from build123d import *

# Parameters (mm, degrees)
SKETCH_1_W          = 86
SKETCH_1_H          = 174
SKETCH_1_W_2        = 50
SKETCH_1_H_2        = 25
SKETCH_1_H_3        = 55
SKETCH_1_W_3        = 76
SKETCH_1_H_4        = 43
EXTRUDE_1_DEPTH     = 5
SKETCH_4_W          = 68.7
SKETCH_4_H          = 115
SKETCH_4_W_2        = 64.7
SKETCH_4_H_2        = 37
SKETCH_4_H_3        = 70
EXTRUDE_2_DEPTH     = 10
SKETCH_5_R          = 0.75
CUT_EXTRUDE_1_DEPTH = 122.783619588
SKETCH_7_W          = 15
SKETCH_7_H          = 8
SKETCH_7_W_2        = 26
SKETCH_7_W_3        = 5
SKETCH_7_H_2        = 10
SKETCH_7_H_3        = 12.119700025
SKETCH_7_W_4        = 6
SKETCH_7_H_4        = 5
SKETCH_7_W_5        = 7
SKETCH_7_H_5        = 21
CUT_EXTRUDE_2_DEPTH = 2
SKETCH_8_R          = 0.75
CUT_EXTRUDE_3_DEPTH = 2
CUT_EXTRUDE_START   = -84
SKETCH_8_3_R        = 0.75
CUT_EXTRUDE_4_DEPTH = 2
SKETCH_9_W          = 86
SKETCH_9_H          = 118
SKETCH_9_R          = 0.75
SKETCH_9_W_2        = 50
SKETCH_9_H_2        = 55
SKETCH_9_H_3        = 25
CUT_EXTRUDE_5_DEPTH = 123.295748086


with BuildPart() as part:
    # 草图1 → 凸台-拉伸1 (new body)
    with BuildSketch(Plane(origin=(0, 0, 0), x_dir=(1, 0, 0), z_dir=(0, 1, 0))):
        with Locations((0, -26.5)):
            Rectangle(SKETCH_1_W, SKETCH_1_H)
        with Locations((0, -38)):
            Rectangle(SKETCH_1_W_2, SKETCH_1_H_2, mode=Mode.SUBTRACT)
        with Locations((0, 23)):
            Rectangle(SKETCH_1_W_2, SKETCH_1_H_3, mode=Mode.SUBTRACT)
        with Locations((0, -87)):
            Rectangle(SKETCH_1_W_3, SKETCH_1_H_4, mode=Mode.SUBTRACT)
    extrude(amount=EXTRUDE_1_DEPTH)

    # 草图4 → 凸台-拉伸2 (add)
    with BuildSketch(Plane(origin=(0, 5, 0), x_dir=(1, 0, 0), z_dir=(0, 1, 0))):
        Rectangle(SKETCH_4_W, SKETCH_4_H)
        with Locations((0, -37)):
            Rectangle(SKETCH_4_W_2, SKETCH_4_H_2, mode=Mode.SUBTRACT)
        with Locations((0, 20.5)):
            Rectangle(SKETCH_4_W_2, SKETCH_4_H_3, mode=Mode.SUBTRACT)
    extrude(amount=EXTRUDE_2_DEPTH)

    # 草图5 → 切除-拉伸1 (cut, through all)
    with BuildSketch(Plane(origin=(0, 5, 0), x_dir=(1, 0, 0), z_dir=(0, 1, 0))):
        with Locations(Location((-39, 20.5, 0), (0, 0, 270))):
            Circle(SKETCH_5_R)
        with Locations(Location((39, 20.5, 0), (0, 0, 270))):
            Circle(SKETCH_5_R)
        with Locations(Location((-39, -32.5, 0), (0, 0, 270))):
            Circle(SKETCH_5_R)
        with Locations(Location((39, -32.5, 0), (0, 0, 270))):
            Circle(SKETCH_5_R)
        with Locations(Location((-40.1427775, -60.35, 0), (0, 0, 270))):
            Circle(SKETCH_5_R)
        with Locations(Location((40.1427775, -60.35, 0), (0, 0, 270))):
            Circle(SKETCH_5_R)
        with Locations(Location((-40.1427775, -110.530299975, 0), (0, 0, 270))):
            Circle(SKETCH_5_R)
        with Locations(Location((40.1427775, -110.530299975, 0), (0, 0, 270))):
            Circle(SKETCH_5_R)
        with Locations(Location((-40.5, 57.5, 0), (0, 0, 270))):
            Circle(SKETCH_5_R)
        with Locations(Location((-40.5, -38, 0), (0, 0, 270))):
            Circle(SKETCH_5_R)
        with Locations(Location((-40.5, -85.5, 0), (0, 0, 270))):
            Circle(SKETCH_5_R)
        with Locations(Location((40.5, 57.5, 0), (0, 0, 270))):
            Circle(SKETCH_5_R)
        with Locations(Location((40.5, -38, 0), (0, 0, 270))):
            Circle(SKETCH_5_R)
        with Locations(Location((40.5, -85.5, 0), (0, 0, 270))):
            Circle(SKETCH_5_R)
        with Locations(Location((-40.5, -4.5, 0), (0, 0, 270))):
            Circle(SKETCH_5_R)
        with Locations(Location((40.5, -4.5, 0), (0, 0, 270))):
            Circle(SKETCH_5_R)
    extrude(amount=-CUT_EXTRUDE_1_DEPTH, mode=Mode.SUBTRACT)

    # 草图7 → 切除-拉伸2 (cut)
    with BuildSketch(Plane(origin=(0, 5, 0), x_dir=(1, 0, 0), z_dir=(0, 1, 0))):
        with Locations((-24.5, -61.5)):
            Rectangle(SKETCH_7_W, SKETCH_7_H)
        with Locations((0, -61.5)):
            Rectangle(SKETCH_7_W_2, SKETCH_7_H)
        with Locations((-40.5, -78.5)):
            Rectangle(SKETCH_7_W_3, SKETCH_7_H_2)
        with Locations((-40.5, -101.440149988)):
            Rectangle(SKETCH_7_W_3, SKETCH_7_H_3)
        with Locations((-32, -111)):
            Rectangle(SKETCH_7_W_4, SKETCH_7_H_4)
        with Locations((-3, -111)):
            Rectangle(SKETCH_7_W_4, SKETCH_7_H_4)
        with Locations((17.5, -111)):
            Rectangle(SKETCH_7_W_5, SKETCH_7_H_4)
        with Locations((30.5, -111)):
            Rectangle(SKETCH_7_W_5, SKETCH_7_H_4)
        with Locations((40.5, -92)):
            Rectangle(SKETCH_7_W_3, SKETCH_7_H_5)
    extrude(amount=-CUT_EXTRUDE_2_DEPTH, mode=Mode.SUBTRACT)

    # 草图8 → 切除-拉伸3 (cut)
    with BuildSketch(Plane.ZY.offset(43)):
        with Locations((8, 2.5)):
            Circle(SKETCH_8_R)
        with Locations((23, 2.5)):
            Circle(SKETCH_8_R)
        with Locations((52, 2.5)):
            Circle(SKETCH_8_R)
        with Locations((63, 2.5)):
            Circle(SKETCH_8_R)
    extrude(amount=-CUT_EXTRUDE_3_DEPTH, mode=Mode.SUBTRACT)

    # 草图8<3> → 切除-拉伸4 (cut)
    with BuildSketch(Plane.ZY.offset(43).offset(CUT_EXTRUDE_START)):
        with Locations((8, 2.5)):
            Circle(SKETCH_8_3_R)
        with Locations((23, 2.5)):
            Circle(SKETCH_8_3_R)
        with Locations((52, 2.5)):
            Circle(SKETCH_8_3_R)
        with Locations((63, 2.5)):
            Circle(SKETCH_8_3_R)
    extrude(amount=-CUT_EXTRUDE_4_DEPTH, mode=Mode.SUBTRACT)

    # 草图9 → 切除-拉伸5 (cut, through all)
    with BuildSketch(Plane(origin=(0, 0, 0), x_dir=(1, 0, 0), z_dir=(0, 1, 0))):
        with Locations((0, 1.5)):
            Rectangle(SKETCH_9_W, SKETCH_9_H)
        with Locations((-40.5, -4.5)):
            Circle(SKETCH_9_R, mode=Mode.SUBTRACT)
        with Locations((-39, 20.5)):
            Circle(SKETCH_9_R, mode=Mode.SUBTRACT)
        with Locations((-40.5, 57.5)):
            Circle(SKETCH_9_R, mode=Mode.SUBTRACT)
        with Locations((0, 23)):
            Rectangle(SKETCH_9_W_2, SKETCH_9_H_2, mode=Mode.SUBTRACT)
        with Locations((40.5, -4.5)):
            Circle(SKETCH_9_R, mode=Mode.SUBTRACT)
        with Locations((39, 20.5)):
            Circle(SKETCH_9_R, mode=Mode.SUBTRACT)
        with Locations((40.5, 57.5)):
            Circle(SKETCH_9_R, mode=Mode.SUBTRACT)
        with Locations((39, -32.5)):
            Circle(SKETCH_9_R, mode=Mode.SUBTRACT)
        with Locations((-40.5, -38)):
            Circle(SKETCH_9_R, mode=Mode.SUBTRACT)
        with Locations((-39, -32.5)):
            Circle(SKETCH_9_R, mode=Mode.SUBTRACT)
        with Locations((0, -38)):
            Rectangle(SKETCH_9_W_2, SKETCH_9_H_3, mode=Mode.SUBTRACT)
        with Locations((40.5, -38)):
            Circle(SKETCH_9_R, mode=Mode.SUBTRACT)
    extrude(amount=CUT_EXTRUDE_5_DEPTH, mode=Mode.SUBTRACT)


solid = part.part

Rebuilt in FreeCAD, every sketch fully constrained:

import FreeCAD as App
import Part
import Sketcher
from FreeCAD import Vector
Q = App.Units.Quantity

doc = App.newDocument("Part")
body = doc.addObject("PartDesign::Body", "Body")

# Sketch on XZ plane
sketch1 = doc.addObject("Sketcher::SketchObject", "Sketch")
body.addObject(sketch1)
sketch1.AttachmentSupport = (doc.XZ_Plane, [""])
sketch1.MapMode = "FlatFace"
sketch1.addGeometry([
    Part.LineSegment(Vector(-43, -60.5, 0), Vector(-43, 113.5, 0)),  # 0
    Part.LineSegment(Vector(-43, 113.5, 0), Vector(43, 113.5, 0)),  # 1
    Part.LineSegment(Vector(43, 113.5, 0), Vector(43, -60.5, 0)),  # 2
    Part.LineSegment(Vector(43, -60.5, 0), Vector(-43, -60.5, 0)),  # 3
    Part.LineSegment(Vector(38, 108.5, 0), Vector(-38, 108.5, 0)),  # 4
    Part.LineSegment(Vector(-38, 108.5, 0), Vector(-38, 65.5, 0)),  # 5
    Part.LineSegment(Vector(-38, 65.5, 0), Vector(38, 65.5, 0)),  # 6
    Part.LineSegment(Vector(38, 65.5, 0), Vector(38, 108.5, 0)),  # 7
    Part.LineSegment(Vector(25, 50.5, 0), Vector(-25, 50.5, 0)),  # 8
    Part.LineSegment(Vector(-25, 50.5, 0), Vector(-25, 25.5, 0)),  # 9
    Part.LineSegment(Vector(-25, 25.5, 0), Vector(25, 25.5, 0)),  # 10
    Part.LineSegment(Vector(25, 25.5, 0), Vector(25, 50.5, 0)),  # 11
    Part.LineSegment(Vector(25, 4.5, 0), Vector(-25, 4.5, 0)),  # 12
    Part.LineSegment(Vector(-25, 4.5, 0), Vector(-25, -50.5, 0)),  # 13
    Part.LineSegment(Vector(-25, -50.5, 0), Vector(25, -50.5, 0)),  # 14
    Part.LineSegment(Vector(25, -50.5, 0), Vector(25, 4.5, 0)),  # 15
], False)
sketch1.addConstraint([
    Sketcher.Constraint("Coincident", 0, 2, 1, 1),
    Sketcher.Constraint("Coincident", 1, 2, 2, 1),
    Sketcher.Constraint("Coincident", 2, 2, 3, 1),
    Sketcher.Constraint("Coincident", 3, 2, 0, 1),
    Sketcher.Constraint("Coincident", 4, 2, 5, 1),
    Sketcher.Constraint("Coincident", 5, 2, 6, 1),
    Sketcher.Constraint("Coincident", 6, 2, 7, 1),
    Sketcher.Constraint("Coincident", 7, 2, 4, 1),
    Sketcher.Constraint("Coincident", 8, 2, 9, 1),
    Sketcher.Constraint("Coincident", 9, 2, 10, 1),
    Sketcher.Constraint("Coincident", 10, 2, 11, 1),
    Sketcher.Constraint("Coincident", 11, 2, 8, 1),
    Sketcher.Constraint("Coincident", 12, 2, 13, 1),
    Sketcher.Constraint("Coincident", 13, 2, 14, 1),
    Sketcher.Constraint("Coincident", 14, 2, 15, 1),
    Sketcher.Constraint("Coincident", 15, 2, 12, 1),
    Sketcher.Constraint("Vertical", 0),
    Sketcher.Constraint("Horizontal", 1),
    Sketcher.Constraint("Vertical", 2),
    Sketcher.Constraint("Horizontal", 3),
    Sketcher.Constraint("Horizontal", 4),
    Sketcher.Constraint("Vertical", 5),
    Sketcher.Constraint("Horizontal", 6),
    Sketcher.Constraint("Vertical", 7),
    Sketcher.Constraint("Horizontal", 8),
    Sketcher.Constraint("Vertical", 9),
    Sketcher.Constraint("Horizontal", 10),
    Sketcher.Constraint("Vertical", 11),
    Sketcher.Constraint("Horizontal", 12),
    Sketcher.Constraint("Vertical", 13),
    Sketcher.Constraint("Horizontal", 14),
    Sketcher.Constraint("Vertical", 15),
    Sketcher.Constraint("Symmetric", 11, 2, 13, 2, -1, 1),
    Sketcher.Constraint("Vertical", 9, 2, 12, 2),
    Sketcher.Constraint("Vertical", 11, 2, 14, 2),
    Sketcher.Constraint("DistanceX", 1, 1, 1, 2, Q("86 mm")),
    Sketcher.Constraint("DistanceX", 4, 2, 4, 1, Q("76 mm")),
    Sketcher.Constraint("DistanceX", 8, 2, 8, 1, Q("50 mm")),
    Sketcher.Constraint("DistanceY", 0, 1, 0, 2, Q("174 mm")),
    Sketcher.Constraint("DistanceY", 5, 2, 5, 1, Q("43 mm")),
    Sketcher.Constraint("DistanceY", 9, 2, 9, 1, Q("25 mm")),
    Sketcher.Constraint("DistanceY", 13, 2, 13, 1, Q("55 mm")),
    Sketcher.Constraint("DistanceX", 0, 2, -1, 1, Q("43 mm")),
    Sketcher.Constraint("DistanceX", 4, 2, -1, 1, Q("38 mm")),
    Sketcher.Constraint("DistanceY", 4, 2, 0, 2, Q("5 mm")),
    Sketcher.Constraint("DistanceY", 8, 2, 5, 2, Q("15 mm")),
    Sketcher.Constraint("DistanceY", 12, 2, 9, 2, Q("21 mm")),
])
pad1 = doc.addObject("PartDesign::Pad", "Pad")
body.addObject(pad1)
pad1.Profile = sketch1
pad1.Length = 5
pad1.Reversed = True

# Sketch on XZ plane
sketch2 = doc.addObject("Sketcher::SketchObject", "Sketch001")
body.addObject(sketch2)
sketch2.AttachmentSupport = (doc.XZ_Plane, [""])
sketch2.MapMode = "FlatFace"
sketch2.AttachmentOffset = App.Placement(Vector(0, 0, -5), App.Rotation())
sketch2.addGeometry([
    Part.LineSegment(Vector(-34.35, -57.5, 0), Vector(-34.35, 57.5, 0)),  # 0
    Part.LineSegment(Vector(-34.35, 57.5, 0), Vector(34.35, 57.5, 0)),  # 1
    Part.LineSegment(Vector(34.35, 57.5, 0), Vector(34.35, -57.5, 0)),  # 2
    Part.LineSegment(Vector(34.35, -57.5, 0), Vector(-34.35, -57.5, 0)),  # 3
    Part.LineSegment(Vector(32.35, 55.5, 0), Vector(-32.35, 55.5, 0)),  # 4
    Part.LineSegment(Vector(-32.35, 55.5, 0), Vector(-32.35, 18.5, 0)),  # 5
    Part.LineSegment(Vector(-32.35, 18.5, 0), Vector(32.35, 18.5, 0)),  # 6
    Part.LineSegment(Vector(32.35, 18.5, 0), Vector(32.35, 55.5, 0)),  # 7
    Part.LineSegment(Vector(32.35, 14.5, 0), Vector(-32.35, 14.5, 0)),  # 8
    Part.LineSegment(Vector(-32.35, 14.5, 0), Vector(-32.35, -55.5, 0)),  # 9
    Part.LineSegment(Vector(-32.35, -55.5, 0), Vector(32.35, -55.5, 0)),  # 10
    Part.LineSegment(Vector(32.35, -55.5, 0), Vector(32.35, 14.5, 0)),  # 11
], False)
sketch2.addConstraint([
    Sketcher.Constraint("Coincident", 0, 2, 1, 1),
    Sketcher.Constraint("Coincident", 1, 2, 2, 1),
    Sketcher.Constraint("Coincident", 2, 2, 3, 1),
    Sketcher.Constraint("Coincident", 3, 2, 0, 1),
    Sketcher.Constraint("Coincident", 4, 2, 5, 1),
    Sketcher.Constraint("Coincident", 5, 2, 6, 1),
    Sketcher.Constraint("Coincident", 6, 2, 7, 1),
    Sketcher.Constraint("Coincident", 7, 2, 4, 1),
    Sketcher.Constraint("Coincident", 8, 2, 9, 1),
    Sketcher.Constraint("Coincident", 9, 2, 10, 1),
    Sketcher.Constraint("Coincident", 10, 2, 11, 1),
    Sketcher.Constraint("Coincident", 11, 2, 8, 1),
    Sketcher.Constraint("Vertical", 0),
    Sketcher.Constraint("Horizontal", 1),
    Sketcher.Constraint("Vertical", 2),
    Sketcher.Constraint("Horizontal", 3),
    Sketcher.Constraint("Horizontal", 4),
    Sketcher.Constraint("Vertical", 5),
    Sketcher.Constraint("Horizontal", 6),
    Sketcher.Constraint("Vertical", 7),
    Sketcher.Constraint("Horizontal", 8),
    Sketcher.Constraint("Vertical", 9),
    Sketcher.Constraint("Horizontal", 10),
    Sketcher.Constraint("Vertical", 11),
    Sketcher.Constraint("Symmetric", 0, 2, 2, 2, -1, 1),
    Sketcher.Constraint("Symmetric", 7, 2, 9, 2, -1, 1),
    Sketcher.Constraint("Vertical", 5, 2, 8, 2),
    Sketcher.Constraint("Vertical", 7, 2, 10, 2),
    Sketcher.Constraint("DistanceY", 0, 1, 0, 2, Q("115 mm")),
    Sketcher.Constraint("DistanceY", 5, 2, 5, 1, Q("37 mm")),
    Sketcher.Constraint("DistanceY", 9, 2, 9, 1, Q("70 mm")),
    Sketcher.Constraint("DistanceX", 1, 1, 1, 2, Q("68.7 mm")),
    Sketcher.Constraint("DistanceX", 4, 2, 4, 1, Q("64.7 mm")),
    Sketcher.Constraint("DistanceY", 4, 2, 0, 2, Q("2 mm")),
])
pad2 = doc.addObject("PartDesign::Pad", "Pad001")
body.addObject(pad2)
pad2.Profile = sketch2
pad2.Length = 10
pad2.Reversed = True

# Sketch on XZ plane
sketch3 = doc.addObject("Sketcher::SketchObject", "Sketch002")
body.addObject(sketch3)
sketch3.AttachmentSupport = (doc.XZ_Plane, [""])
sketch3.MapMode = "FlatFace"
sketch3.AttachmentOffset = App.Placement(Vector(0, 0, -5), App.Rotation())
sketch3.addGeometry([
    Part.Circle(Vector(-39, -20.5, 0), Vector(0, 0, 1), 0.75),  # 0
    Part.Circle(Vector(39, -20.5, 0), Vector(0, 0, 1), 0.75),  # 1
    Part.Circle(Vector(-39, 32.5, 0), Vector(0, 0, 1), 0.75),  # 2
    Part.Circle(Vector(39, 32.5, 0), Vector(0, 0, 1), 0.75),  # 3
    Part.Circle(Vector(-40.142778, 60.35, 0), Vector(0, 0, 1), 0.75),  # 4
    Part.Circle(Vector(40.142778, 60.35, 0), Vector(0, 0, 1), 0.75),  # 5
    Part.Circle(Vector(-40.142778, 110.5303, 0), Vector(0, 0, 1), 0.75),  # 6
    Part.Circle(Vector(40.142778, 110.5303, 0), Vector(0, 0, 1), 0.75),  # 7
    Part.Circle(Vector(-40.5, -57.5, 0), Vector(0, 0, 1), 0.75),  # 8
    Part.Circle(Vector(-40.5, 38, 0), Vector(0, 0, 1), 0.75),  # 9
    Part.Circle(Vector(-40.5, 85.5, 0), Vector(0, 0, 1), 0.75),  # 10
    Part.Circle(Vector(40.5, -57.5, 0), Vector(0, 0, 1), 0.75),  # 11
    Part.Circle(Vector(40.5, 38, 0), Vector(0, 0, 1), 0.75),  # 12
    Part.Circle(Vector(40.5, 85.5, 0), Vector(0, 0, 1), 0.75),  # 13
    Part.Circle(Vector(-40.5, 4.5, 0), Vector(0, 0, 1), 0.75),  # 14
    Part.Circle(Vector(40.5, 4.5, 0), Vector(0, 0, 1), 0.75),  # 15
], False)
sketch3.addConstraint([
    Sketcher.Constraint("Equal", 0, 1),
    Sketcher.Constraint("Equal", 1, 2),
    Sketcher.Constraint("Equal", 2, 3),
    Sketcher.Constraint("Equal", 3, 4),
    Sketcher.Constraint("Equal", 4, 5),
    Sketcher.Constraint("Equal", 5, 6),
    Sketcher.Constraint("Equal", 6, 7),
    Sketcher.Constraint("Equal", 7, 8),
    Sketcher.Constraint("Equal", 8, 9),
    Sketcher.Constraint("Equal", 9, 10),
    Sketcher.Constraint("Equal", 10, 11),
    Sketcher.Constraint("Equal", 11, 12),
    Sketcher.Constraint("Equal", 12, 13),
    Sketcher.Constraint("Equal", 13, 14),
    Sketcher.Constraint("Equal", 14, 15),
    Sketcher.Constraint("Symmetric", 0, 3, 1, 3, -2),
    Sketcher.Constraint("Symmetric", 2, 3, 3, 3, -2),
    Sketcher.Constraint("Symmetric", 4, 3, 5, 3, -2),
    Sketcher.Constraint("Symmetric", 6, 3, 7, 3, -2),
    Sketcher.Constraint("Symmetric", 8, 3, 11, 3, -2),
    Sketcher.Constraint("Symmetric", 9, 3, 12, 3, -2),
    Sketcher.Constraint("Symmetric", 10, 3, 13, 3, -2),
    Sketcher.Constraint("Symmetric", 14, 3, 15, 3, -2),
    Sketcher.Constraint("Vertical", 0, 3, 2, 3),
    Sketcher.Constraint("Vertical", 4, 3, 6, 3),
    Sketcher.Constraint("Vertical", 8, 3, 9, 3),
    Sketcher.Constraint("Vertical", 9, 3, 10, 3),
    Sketcher.Constraint("Vertical", 10, 3, 14, 3),
    Sketcher.Constraint("Diameter", 0, Q("1.5 mm")),
    Sketcher.Constraint("DistanceX", 0, 3, -1, 1, Q("39 mm")),
    Sketcher.Constraint("DistanceY", -1, 1, 9, 3, Q("38 mm")),
    Sketcher.Constraint("DistanceY", 0, 3, 2, 3, Q("53 mm")),
    Sketcher.Constraint("DistanceY", 8, 3, 0, 3, Q("37 mm")),
    Sketcher.Constraint("DistanceY", 2, 3, 10, 3, Q("53 mm")),
    Sketcher.Constraint("DistanceX", 8, 3, 11, 3, Q("81 mm")),
    Sketcher.Constraint("DistanceY", 0, 3, 14, 3, Q("25 mm")),
    Sketcher.Constraint("DistanceY", 0, 3, -1, 1, Q("20.5 mm")),
    Sketcher.Constraint("DistanceY", -1, 1, 4, 3, Q("60.35 mm")),
    Sketcher.Constraint("DistanceY", -1, 1, 6, 3, Q("110.5303 mm")),
    Sketcher.Constraint("DistanceX", 4, 3, -1, 1, Q("40.142778 mm")),
])
pocket1 = doc.addObject("PartDesign::Pocket", "Pocket")
body.addObject(pocket1)
pocket1.Profile = sketch3
pocket1.Type = "ThroughAll"
pocket1.Reversed = True

# Sketch on XZ plane
sketch4 = doc.addObject("Sketcher::SketchObject", "Sketch003")
body.addObject(sketch4)
sketch4.AttachmentSupport = (doc.XZ_Plane, [""])
sketch4.MapMode = "FlatFace"
sketch4.AttachmentOffset = App.Placement(Vector(0, 0, -5), App.Rotation())
sketch4.addGeometry([
    Part.LineSegment(Vector(-32, 57.5, 0), Vector(-32, 65.5, 0)),  # 0
    Part.LineSegment(Vector(-32, 65.5, 0), Vector(-17, 65.5, 0)),  # 1
    Part.LineSegment(Vector(-17, 65.5, 0), Vector(-17, 57.5, 0)),  # 2
    Part.LineSegment(Vector(-17, 57.5, 0), Vector(-32, 57.5, 0)),  # 3
    Part.LineSegment(Vector(-13, 57.5, 0), Vector(-13, 65.5, 0)),  # 4
    Part.LineSegment(Vector(-13, 65.5, 0), Vector(13, 65.5, 0)),  # 5
    Part.LineSegment(Vector(13, 65.5, 0), Vector(13, 57.5, 0)),  # 6
    Part.LineSegment(Vector(13, 57.5, 0), Vector(-13, 57.5, 0)),  # 7
    Part.LineSegment(Vector(-43, 73.5, 0), Vector(-43, 83.5, 0)),  # 8
    Part.LineSegment(Vector(-43, 83.5, 0), Vector(-38, 83.5, 0)),  # 9
    Part.LineSegment(Vector(-38, 83.5, 0), Vector(-38, 73.5, 0)),  # 10
    Part.LineSegment(Vector(-38, 73.5, 0), Vector(-43, 73.5, 0)),  # 11
    Part.LineSegment(Vector(-43, 95.3803, 0), Vector(-43, 107.5, 0)),  # 12
    Part.LineSegment(Vector(-43, 107.5, 0), Vector(-38, 107.5, 0)),  # 13
    Part.LineSegment(Vector(-38, 107.5, 0), Vector(-38, 95.3803, 0)),  # 14
    Part.LineSegment(Vector(-38, 95.3803, 0), Vector(-43, 95.3803, 0)),  # 15
    Part.LineSegment(Vector(-35, 108.5, 0), Vector(-35, 113.5, 0)),  # 16
    Part.LineSegment(Vector(-35, 113.5, 0), Vector(-29, 113.5, 0)),  # 17
    Part.LineSegment(Vector(-29, 113.5, 0), Vector(-29, 108.5, 0)),  # 18
    Part.LineSegment(Vector(-29, 108.5, 0), Vector(-35, 108.5, 0)),  # 19
    Part.LineSegment(Vector(-6, 108.5, 0), Vector(-6, 113.5, 0)),  # 20
    Part.LineSegment(Vector(-6, 113.5, 0), Vector(0, 113.5, 0)),  # 21
    Part.LineSegment(Vector(0, 113.5, 0), Vector(0, 108.5, 0)),  # 22
    Part.LineSegment(Vector(0, 108.5, 0), Vector(-6, 108.5, 0)),  # 23
    Part.LineSegment(Vector(14, 108.5, 0), Vector(14, 113.5, 0)),  # 24
    Part.LineSegment(Vector(14, 113.5, 0), Vector(21, 113.5, 0)),  # 25
    Part.LineSegment(Vector(21, 113.5, 0), Vector(21, 108.5, 0)),  # 26
    Part.LineSegment(Vector(21, 108.5, 0), Vector(14, 108.5, 0)),  # 27
    Part.LineSegment(Vector(27, 108.5, 0), Vector(27, 113.5, 0)),  # 28
    Part.LineSegment(Vector(27, 113.5, 0), Vector(34, 113.5, 0)),  # 29
    Part.LineSegment(Vector(34, 113.5, 0), Vector(34, 108.5, 0)),  # 30
    Part.LineSegment(Vector(34, 108.5, 0), Vector(27, 108.5, 0)),  # 31
    Part.LineSegment(Vector(38, 81.5, 0), Vector(38, 102.5, 0)),  # 32
    Part.LineSegment(Vector(38, 102.5, 0), Vector(43, 102.5, 0)),  # 33
    Part.LineSegment(Vector(43, 102.5, 0), Vector(43, 81.5, 0)),  # 34
    Part.LineSegment(Vector(43, 81.5, 0), Vector(38, 81.5, 0)),  # 35
], False)
sketch4.addConstraint([
    Sketcher.Constraint("Coincident", 0, 2, 1, 1),
    Sketcher.Constraint("Coincident", 1, 2, 2, 1),
    Sketcher.Constraint("Coincident", 2, 2, 3, 1),
    Sketcher.Constraint("Coincident", 3, 2, 0, 1),
    Sketcher.Constraint("Coincident", 4, 2, 5, 1),
    Sketcher.Constraint("Coincident", 5, 2, 6, 1),
    Sketcher.Constraint("Coincident", 6, 2, 7, 1),
    Sketcher.Constraint("Coincident", 7, 2, 4, 1),
    Sketcher.Constraint("Coincident", 8, 2, 9, 1),
    Sketcher.Constraint("Coincident", 9, 2, 10, 1),
    Sketcher.Constraint("Coincident", 10, 2, 11, 1),
    Sketcher.Constraint("Coincident", 11, 2, 8, 1),
    Sketcher.Constraint("Coincident", 12, 2, 13, 1),
    Sketcher.Constraint("Coincident", 13, 2, 14, 1),
    Sketcher.Constraint("Coincident", 14, 2, 15, 1),
    Sketcher.Constraint("Coincident", 15, 2, 12, 1),
    Sketcher.Constraint("Coincident", 16, 2, 17, 1),
    Sketcher.Constraint("Coincident", 17, 2, 18, 1),
    Sketcher.Constraint("Coincident", 18, 2, 19, 1),
    Sketcher.Constraint("Coincident", 19, 2, 16, 1),
    Sketcher.Constraint("Coincident", 20, 2, 21, 1),
    Sketcher.Constraint("Coincident", 21, 2, 22, 1),
    Sketcher.Constraint("Coincident", 22, 2, 23, 1),
    Sketcher.Constraint("Coincident", 23, 2, 20, 1),
    Sketcher.Constraint("Coincident", 24, 2, 25, 1),
    Sketcher.Constraint("Coincident", 25, 2, 26, 1),
    Sketcher.Constraint("Coincident", 26, 2, 27, 1),
    Sketcher.Constraint("Coincident", 27, 2, 24, 1),
    Sketcher.Constraint("Coincident", 28, 2, 29, 1),
    Sketcher.Constraint("Coincident", 29, 2, 30, 1),
    Sketcher.Constraint("Coincident", 30, 2, 31, 1),
    Sketcher.Constraint("Coincident", 31, 2, 28, 1),
    Sketcher.Constraint("Coincident", 32, 2, 33, 1),
    Sketcher.Constraint("Coincident", 33, 2, 34, 1),
    Sketcher.Constraint("Coincident", 34, 2, 35, 1),
    Sketcher.Constraint("Coincident", 35, 2, 32, 1),
    Sketcher.Constraint("Vertical", 0),
    Sketcher.Constraint("Horizontal", 1),
    Sketcher.Constraint("Vertical", 2),
    Sketcher.Constraint("Horizontal", 3),
    Sketcher.Constraint("Vertical", 4),
    Sketcher.Constraint("Horizontal", 5),
    Sketcher.Constraint("Vertical", 6),
    Sketcher.Constraint("Horizontal", 7),
    Sketcher.Constraint("Vertical", 8),
    Sketcher.Constraint("Horizontal", 9),
    Sketcher.Constraint("Vertical", 10),
    Sketcher.Constraint("Horizontal", 11),
    Sketcher.Constraint("Vertical", 12),
    Sketcher.Constraint("Horizontal", 13),
    Sketcher.Constraint("Vertical", 14),
    Sketcher.Constraint("Horizontal", 15),
    Sketcher.Constraint("Vertical", 16),
    Sketcher.Constraint("Horizontal", 17),
    Sketcher.Constraint("Vertical", 18),
    Sketcher.Constraint("Horizontal", 19),
    Sketcher.Constraint("Vertical", 20),
    Sketcher.Constraint("Horizontal", 21),
    Sketcher.Constraint("Vertical", 22),
    Sketcher.Constraint("Horizontal", 23),
    Sketcher.Constraint("Vertical", 24),
    Sketcher.Constraint("Horizontal", 25),
    Sketcher.Constraint("Vertical", 26),
    Sketcher.Constraint("Horizontal", 27),
    Sketcher.Constraint("Vertical", 28),
    Sketcher.Constraint("Horizontal", 29),
    Sketcher.Constraint("Vertical", 30),
    Sketcher.Constraint("Horizontal", 31),
    Sketcher.Constraint("Vertical", 32),
    Sketcher.Constraint("Horizontal", 33),
    Sketcher.Constraint("Vertical", 34),
    Sketcher.Constraint("Horizontal", 35),
    Sketcher.Constraint("PointOnObject", 21, 2, -2),
    Sketcher.Constraint("Horizontal", 1, 2, 4, 2),
    Sketcher.Constraint("Horizontal", 3, 2, 6, 2),
    Sketcher.Constraint("Horizontal", 17, 2, 20, 2),
    Sketcher.Constraint("Horizontal", 19, 2, 22, 2),
    Sketcher.Constraint("Horizontal", 21, 2, 24, 2),
    Sketcher.Constraint("Horizontal", 23, 2, 26, 2),
    Sketcher.Constraint("Horizontal", 25, 2, 28, 2),
    Sketcher.Constraint("Horizontal", 27, 2, 30, 2),
    Sketcher.Constraint("Vertical", 11, 2, 12, 2),
    Sketcher.Constraint("Vertical", 10, 2, 13, 2),
    Sketcher.Constraint("Equal", 19, 21),
    Sketcher.Constraint("Equal", 27, 29),
    Sketcher.Constraint("Equal", 15, 33),
    Sketcher.Constraint("Equal", 35, 16),
    Sketcher.Constraint("DistanceX", 1, 1, 1, 2, Q("15 mm")),
    Sketcher.Constraint("DistanceX", 5, 1, 5, 2, Q("26 mm")),
    Sketcher.Constraint("DistanceX", 9, 1, 9, 2, Q("5 mm")),
    Sketcher.Constraint("DistanceX", 17, 1, 17, 2, Q("6 mm")),
    Sketcher.Constraint("DistanceX", 25, 1, 25, 2, Q("7 mm")),
    Sketcher.Constraint("DistanceY", 0, 1, 0, 2, Q("8 mm")),
    Sketcher.Constraint("DistanceY", 8, 1, 8, 2, Q("10 mm")),
    Sketcher.Constraint("DistanceY", 32, 1, 32, 2, Q("21 mm")),
    Sketcher.Constraint("DistanceX", 0, 2, -1, 1, Q("32 mm")),
    Sketcher.Constraint("DistanceX", 4, 2, -1, 1, Q("13 mm")),
    Sketcher.Constraint("DistanceX", 8, 2, -1, 1, Q("43 mm")),
    Sketcher.Constraint("DistanceX", 16, 2, -1, 1, Q("35 mm")),
    Sketcher.Constraint("DistanceX", -1, 1, 24, 2, Q("14 mm")),
    Sketcher.Constraint("DistanceX", -1, 1, 28, 2, Q("27 mm")),
    Sketcher.Constraint("DistanceX", -1, 1, 32, 2, Q("38 mm")),
    Sketcher.Constraint("DistanceY", 0, 2, 8, 2, Q("18 mm")),
    Sketcher.Constraint("DistanceY", 8, 2, 12, 2, Q("24 mm")),
    Sketcher.Constraint("DistanceY", 13, 2, 16, 2, Q("6 mm")),
    Sketcher.Constraint("DistanceY", 32, 2, 30, 2, Q("6 mm")),
    Sketcher.Constraint("DistanceY", -1, 1, 0, 2, Q("65.5 mm")),
    Sketcher.Constraint("DistanceY", 12, 1, 12, 2, Q("12.1197 mm")),
])
pocket2 = doc.addObject("PartDesign::Pocket", "Pocket001")
body.addObject(pocket2)
pocket2.Profile = sketch4
pocket2.Length = 2
pocket2.Reversed = True

# Sketch on YZ plane
sketch5 = doc.addObject("Sketcher::SketchObject", "Sketch004")
body.addObject(sketch5)
sketch5.AttachmentSupport = (doc.YZ_Plane, [""])
sketch5.MapMode = "FlatFace"
sketch5.AttachmentOffset = App.Placement(Vector(0, 0, -43), App.Rotation())
sketch5.addGeometry([
    Part.Circle(Vector(2.5, 8, 0), Vector(0, 0, 1), 0.75),
    Part.Circle(Vector(2.5, 23, 0), Vector(0, 0, 1), 0.75),
    Part.Circle(Vector(2.5, 52, 0), Vector(0, 0, 1), 0.75),
    Part.Circle(Vector(2.5, 63, 0), Vector(0, 0, 1), 0.75),
], False)
sketch5.addConstraint([
    Sketcher.Constraint("Equal", 0, 1),
    Sketcher.Constraint("Equal", 1, 2),
    Sketcher.Constraint("Equal", 2, 3),
    Sketcher.Constraint("Vertical", 0, 3, 1, 3),
    Sketcher.Constraint("Vertical", 1, 3, 2, 3),
    Sketcher.Constraint("Vertical", 2, 3, 3, 3),
    Sketcher.Constraint("Diameter", 0, Q("1.5 mm")),
    Sketcher.Constraint("DistanceY", -1, 1, 0, 3, Q("8 mm")),
    Sketcher.Constraint("DistanceY", -1, 1, 1, 3, Q("23 mm")),
    Sketcher.Constraint("DistanceY", -1, 1, 2, 3, Q("52 mm")),
    Sketcher.Constraint("DistanceY", -1, 1, 3, 3, Q("63 mm")),
    Sketcher.Constraint("DistanceX", -1, 1, 0, 3, Q("2.5 mm")),
])
pocket3 = doc.addObject("PartDesign::Pocket", "Pocket002")
body.addObject(pocket3)
pocket3.Profile = sketch5
pocket3.Length = 2
pocket3.Reversed = True

# Sketch on YZ plane
sketch6 = doc.addObject("Sketcher::SketchObject", "Sketch005")
body.addObject(sketch6)
sketch6.AttachmentSupport = (doc.YZ_Plane, [""])
sketch6.MapMode = "FlatFace"
sketch6.AttachmentOffset = App.Placement(Vector(0, 0, 41), App.Rotation())
sketch6.addGeometry([
    Part.Circle(Vector(2.5, 8, 0), Vector(0, 0, 1), 0.75),
    Part.Circle(Vector(2.5, 23, 0), Vector(0, 0, 1), 0.75),
    Part.Circle(Vector(2.5, 52, 0), Vector(0, 0, 1), 0.75),
    Part.Circle(Vector(2.5, 63, 0), Vector(0, 0, 1), 0.75),
], False)
sketch6.addConstraint([
    Sketcher.Constraint("Equal", 0, 1),
    Sketcher.Constraint("Equal", 1, 2),
    Sketcher.Constraint("Equal", 2, 3),
    Sketcher.Constraint("Vertical", 0, 3, 1, 3),
    Sketcher.Constraint("Vertical", 1, 3, 2, 3),
    Sketcher.Constraint("Vertical", 2, 3, 3, 3),
    Sketcher.Constraint("Diameter", 0, Q("1.5 mm")),
    Sketcher.Constraint("DistanceY", -1, 1, 0, 3, Q("8 mm")),
    Sketcher.Constraint("DistanceY", -1, 1, 1, 3, Q("23 mm")),
    Sketcher.Constraint("DistanceY", -1, 1, 2, 3, Q("52 mm")),
    Sketcher.Constraint("DistanceY", -1, 1, 3, 3, Q("63 mm")),
    Sketcher.Constraint("DistanceX", -1, 1, 0, 3, Q("2.5 mm")),
])
pocket4 = doc.addObject("PartDesign::Pocket", "Pocket003")
body.addObject(pocket4)
pocket4.Profile = sketch6
pocket4.Length = 2
pocket4.Reversed = True

# Sketch on XZ plane
sketch7 = doc.addObject("Sketcher::SketchObject", "Sketch006")
body.addObject(sketch7)
sketch7.AttachmentSupport = (doc.XZ_Plane, [""])
sketch7.MapMode = "FlatFace"
sketch7.addGeometry([
    Part.LineSegment(Vector(-43, -60.5, 0), Vector(-43, 57.5, 0)),  # 0
    Part.LineSegment(Vector(-43, 57.5, 0), Vector(43, 57.5, 0)),  # 1
    Part.LineSegment(Vector(43, 57.5, 0), Vector(43, -60.5, 0)),  # 2
    Part.LineSegment(Vector(43, -60.5, 0), Vector(-43, -60.5, 0)),  # 3
    Part.Circle(Vector(-40.5, 38, 0), Vector(0, 0, 1), 0.75),  # 4
    Part.Circle(Vector(-39, 32.5, 0), Vector(0, 0, 1), 0.75),  # 5
    Part.Circle(Vector(-40.5, 4.5, 0), Vector(0, 0, 1), 0.75),  # 6
    Part.LineSegment(Vector(25, 50.5, 0), Vector(-25, 50.5, 0)),  # 7
    Part.LineSegment(Vector(-25, 50.5, 0), Vector(-25, 25.5, 0)),  # 8
    Part.LineSegment(Vector(-25, 25.5, 0), Vector(25, 25.5, 0)),  # 9
    Part.LineSegment(Vector(25, 25.5, 0), Vector(25, 50.5, 0)),  # 10
    Part.Circle(Vector(40.5, 38, 0), Vector(0, 0, 1), 0.75),  # 11
    Part.Circle(Vector(39, 32.5, 0), Vector(0, 0, 1), 0.75),  # 12
    Part.Circle(Vector(40.5, 4.5, 0), Vector(0, 0, 1), 0.75),  # 13
    Part.Circle(Vector(-39, -20.5, 0), Vector(0, 0, 1), 0.75),  # 14
    Part.Circle(Vector(-40.5, -57.5, 0), Vector(0, 0, 1), 0.75),  # 15
    Part.LineSegment(Vector(25, 4.5, 0), Vector(-25, 4.5, 0)),  # 16
    Part.LineSegment(Vector(-25, 4.5, 0), Vector(-25, -50.5, 0)),  # 17
    Part.LineSegment(Vector(-25, -50.5, 0), Vector(25, -50.5, 0)),  # 18
    Part.LineSegment(Vector(25, -50.5, 0), Vector(25, 4.5, 0)),  # 19
    Part.Circle(Vector(39, -20.5, 0), Vector(0, 0, 1), 0.75),  # 20
    Part.Circle(Vector(40.5, -57.5, 0), Vector(0, 0, 1), 0.75),  # 21
], False)
sketch7.addConstraint([
    Sketcher.Constraint("Coincident", 0, 2, 1, 1),
    Sketcher.Constraint("Coincident", 1, 2, 2, 1),
    Sketcher.Constraint("Coincident", 2, 2, 3, 1),
    Sketcher.Constraint("Coincident", 3, 2, 0, 1),
    Sketcher.Constraint("Coincident", 7, 2, 8, 1),
    Sketcher.Constraint("Coincident", 8, 2, 9, 1),
    Sketcher.Constraint("Coincident", 9, 2, 10, 1),
    Sketcher.Constraint("Coincident", 10, 2, 7, 1),
    Sketcher.Constraint("Coincident", 16, 2, 17, 1),
    Sketcher.Constraint("Coincident", 17, 2, 18, 1),
    Sketcher.Constraint("Coincident", 18, 2, 19, 1),
    Sketcher.Constraint("Coincident", 19, 2, 16, 1),
    Sketcher.Constraint("Vertical", 0),
    Sketcher.Constraint("Horizontal", 1),
    Sketcher.Constraint("Vertical", 2),
    Sketcher.Constraint("Horizontal", 3),
    Sketcher.Constraint("Horizontal", 7),
    Sketcher.Constraint("Vertical", 8),
    Sketcher.Constraint("Horizontal", 9),
    Sketcher.Constraint("Vertical", 10),
    Sketcher.Constraint("Horizontal", 16),
    Sketcher.Constraint("Vertical", 17),
    Sketcher.Constraint("Horizontal", 18),
    Sketcher.Constraint("Vertical", 19),
    Sketcher.Constraint("Equal", 4, 5),
    Sketcher.Constraint("Equal", 5, 6),
    Sketcher.Constraint("Equal", 6, 11),
    Sketcher.Constraint("Equal", 11, 12),
    Sketcher.Constraint("Equal", 12, 13),
    Sketcher.Constraint("Equal", 13, 14),
    Sketcher.Constraint("Equal", 14, 15),
    Sketcher.Constraint("Equal", 15, 20),
    Sketcher.Constraint("Equal", 20, 21),
    Sketcher.Constraint("Symmetric", 10, 2, 17, 2, -1, 1),
    Sketcher.Constraint("Symmetric", 4, 3, 11, 3, -2),
    Sketcher.Constraint("Symmetric", 5, 3, 12, 3, -2),
    Sketcher.Constraint("Symmetric", 6, 3, 13, 3, -2),
    Sketcher.Constraint("Symmetric", 14, 3, 20, 3, -2),
    Sketcher.Constraint("Symmetric", 15, 3, 21, 3, -2),
    Sketcher.Constraint("Horizontal", 13, 3, 16, 2),
    Sketcher.Constraint("Vertical", 4, 3, 6, 3),
    Sketcher.Constraint("Vertical", 5, 3, 14, 3),
    Sketcher.Constraint("Vertical", 6, 3, 15, 3),
    Sketcher.Constraint("Vertical", 8, 2, 16, 2),
    Sketcher.Constraint("Vertical", 10, 2, 18, 2),
    Sketcher.Constraint("Diameter", 4, Q("1.5 mm")),
    Sketcher.Constraint("DistanceX", 1, 1, 1, 2, Q("86 mm")),
    Sketcher.Constraint("DistanceX", 7, 2, 7, 1, Q("50 mm")),
    Sketcher.Constraint("DistanceY", 0, 1, 0, 2, Q("118 mm")),
    Sketcher.Constraint("DistanceY", 8, 2, 8, 1, Q("25 mm")),
    Sketcher.Constraint("DistanceY", 17, 2, 17, 1, Q("55 mm")),
    Sketcher.Constraint("DistanceY", -1, 1, 4, 3, Q("38 mm")),
    Sketcher.Constraint("DistanceX", 5, 3, -1, 1, Q("39 mm")),
    Sketcher.Constraint("DistanceX", 0, 2, -1, 1, Q("43 mm")),
    Sketcher.Constraint("DistanceY", 6, 3, 5, 3, Q("28 mm")),
    Sketcher.Constraint("DistanceX", 4, 3, 11, 3, Q("81 mm")),
    Sketcher.Constraint("DistanceY", 14, 3, 6, 3, Q("25 mm")),
    Sketcher.Constraint("DistanceY", 15, 3, 14, 3, Q("37 mm")),
    Sketcher.Constraint("DistanceY", 5, 3, 0, 2, Q("25 mm")),
    Sketcher.Constraint("DistanceY", 7, 2, 0, 2, Q("7 mm")),
])
pocket5 = doc.addObject("PartDesign::Pocket", "Pocket004")
body.addObject(pocket5)
pocket5.Profile = sketch7
pocket5.Type = "ThroughAll"

doc.recompute()
